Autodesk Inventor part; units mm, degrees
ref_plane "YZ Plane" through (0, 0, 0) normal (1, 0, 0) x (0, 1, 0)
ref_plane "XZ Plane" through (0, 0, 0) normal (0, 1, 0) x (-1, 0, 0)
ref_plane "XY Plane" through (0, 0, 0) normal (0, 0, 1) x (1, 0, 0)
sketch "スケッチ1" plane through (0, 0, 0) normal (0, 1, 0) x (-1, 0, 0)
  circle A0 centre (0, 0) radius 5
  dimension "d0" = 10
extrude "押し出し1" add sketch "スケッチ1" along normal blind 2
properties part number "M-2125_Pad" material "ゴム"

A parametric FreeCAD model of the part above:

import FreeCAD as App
import Part
import Sketcher
from FreeCAD import Vector

doc = App.newDocument("Part")
body = doc.addObject("PartDesign::Body", "Body")

# Sketch on XZ plane
sketch1 = doc.addObject("Sketcher::SketchObject", "Sketch")
body.addObject(sketch1)
sketch1.AttachmentSupport = (doc.XZ_Plane, [""])
sketch1.MapMode = "FlatFace"
sketch1.addGeometry(Part.Circle(Vector(0, 0, 0), Vector(0, 0, 1), 5), False)
sketch1.addConstraint([
    Sketcher.Constraint("Coincident", 0, 3, -1, 1),
    Sketcher.Constraint("Diameter", 0, 10.0),
])
pad1 = doc.addObject("PartDesign::Pad", "Pad")
body.addObject(pad1)
pad1.Profile = sketch1
pad1.Length = 2
pad1.Reversed = True

doc.recompute()
